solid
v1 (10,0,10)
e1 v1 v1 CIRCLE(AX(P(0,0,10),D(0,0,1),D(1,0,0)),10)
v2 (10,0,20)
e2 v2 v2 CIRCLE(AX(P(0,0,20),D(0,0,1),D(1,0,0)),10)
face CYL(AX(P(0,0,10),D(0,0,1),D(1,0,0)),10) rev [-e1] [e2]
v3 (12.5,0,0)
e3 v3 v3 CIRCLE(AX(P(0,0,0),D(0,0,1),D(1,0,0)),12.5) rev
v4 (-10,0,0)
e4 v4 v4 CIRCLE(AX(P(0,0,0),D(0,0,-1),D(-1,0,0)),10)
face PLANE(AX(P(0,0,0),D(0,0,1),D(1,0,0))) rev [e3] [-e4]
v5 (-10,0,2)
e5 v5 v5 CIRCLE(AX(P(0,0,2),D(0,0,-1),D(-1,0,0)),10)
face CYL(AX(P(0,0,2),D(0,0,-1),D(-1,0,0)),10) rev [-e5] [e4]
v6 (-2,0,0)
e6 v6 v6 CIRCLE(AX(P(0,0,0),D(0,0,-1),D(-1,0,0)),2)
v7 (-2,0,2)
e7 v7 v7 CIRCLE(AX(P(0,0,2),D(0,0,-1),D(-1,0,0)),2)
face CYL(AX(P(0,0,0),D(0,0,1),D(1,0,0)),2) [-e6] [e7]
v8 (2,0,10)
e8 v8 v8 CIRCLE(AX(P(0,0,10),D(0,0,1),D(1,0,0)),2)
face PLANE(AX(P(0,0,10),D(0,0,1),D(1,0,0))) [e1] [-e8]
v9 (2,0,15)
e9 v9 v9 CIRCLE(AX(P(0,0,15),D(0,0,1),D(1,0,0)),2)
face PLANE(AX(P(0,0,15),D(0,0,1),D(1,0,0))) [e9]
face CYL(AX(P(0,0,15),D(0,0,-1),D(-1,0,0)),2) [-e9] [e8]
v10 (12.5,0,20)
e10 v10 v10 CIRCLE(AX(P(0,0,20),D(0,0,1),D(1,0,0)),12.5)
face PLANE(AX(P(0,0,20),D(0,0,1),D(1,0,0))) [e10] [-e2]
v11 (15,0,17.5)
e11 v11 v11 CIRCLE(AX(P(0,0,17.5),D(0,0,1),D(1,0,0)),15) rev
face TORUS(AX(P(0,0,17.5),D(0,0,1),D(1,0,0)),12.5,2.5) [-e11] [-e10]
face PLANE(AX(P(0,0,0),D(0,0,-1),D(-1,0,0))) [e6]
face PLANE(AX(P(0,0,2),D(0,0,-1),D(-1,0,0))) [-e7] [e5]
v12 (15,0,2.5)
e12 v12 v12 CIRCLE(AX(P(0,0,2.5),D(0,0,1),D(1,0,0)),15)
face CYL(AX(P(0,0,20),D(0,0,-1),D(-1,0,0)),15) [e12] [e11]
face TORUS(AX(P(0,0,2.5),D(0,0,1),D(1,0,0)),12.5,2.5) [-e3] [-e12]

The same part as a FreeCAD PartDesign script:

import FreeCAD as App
import Part
import Sketcher
from FreeCAD import Vector


def edges_at(feature, points):
    """Names of the edges that pass closest to the given points."""
    edges = feature.Shape.Edges
    near = lambda p: min(range(len(edges)), key=lambda i: edges[i].distToShape(Part.Vertex(*p))[0])
    return sorted({f"Edge{near(p) + 1}" for p in points})

doc = App.newDocument("Part")
body = doc.addObject("PartDesign::Body", "Body")

# Sketch on XY plane
sketch1 = body.newObject("Sketcher::SketchObject", "Sketch")
sketch1.AttachmentSupport = (doc.getObject("XY_Plane"), [""])
sketch1.MapMode = "FlatFace"
sketch1.addGeometry(Part.Circle(Vector(0, 0, 0), Vector(0, 0, 1), 15), False)
sketch1.addConstraint([
    Sketcher.Constraint("Coincident", 0, 3, -1, 1),
    Sketcher.Constraint("Diameter", 0, 30.0),
])
pad1 = body.newObject("PartDesign::Pad", "Pad")
pad1.Profile = sketch1
pad1.Length = 20

# Sketch on XY plane
sketch2 = body.newObject("Sketcher::SketchObject", "Sketch001")
sketch2.AttachmentSupport = (doc.getObject("XY_Plane"), [""])
sketch2.MapMode = "FlatFace"
sketch2.AttachmentOffset = App.Placement(Vector(0, 0, 20), App.Rotation())
sketch2.addGeometry(Part.Circle(Vector(0, 0, 0), Vector(0, 0, 1), 10), False)
sketch2.addConstraint([
    Sketcher.Constraint("Coincident", 0, 3, -1, 1),
    Sketcher.Constraint("Diameter", 0, 20.0),
])
pocket1 = body.newObject("PartDesign::Pocket", "Pocket")
pocket1.Profile = sketch2
pocket1.Length = 10

# Sketch on XY plane
sketch3 = body.newObject("Sketcher::SketchObject", "Sketch002")
sketch3.AttachmentSupport = (doc.getObject("XY_Plane"), [""])
sketch3.MapMode = "FlatFace"
sketch3.AttachmentOffset = App.Placement(Vector(0, 0, 2), App.Rotation())
sketch3.addGeometry(Part.Circle(Vector(0, 0, 0), Vector(0, 0, 1), 10), False)
sketch3.addConstraint([
    Sketcher.Constraint("Coincident", 0, 3, -1, 1),
    Sketcher.Constraint("Diameter", 0, 20.0),
])
pocket2 = body.newObject("PartDesign::Pocket", "Pocket001")
pocket2.Profile = sketch3
pocket2.Length = 2

# Sketch on XY plane
sketch4 = body.newObject("Sketcher::SketchObject", "Sketch003")
sketch4.AttachmentSupport = (doc.getObject("XY_Plane"), [""])
sketch4.MapMode = "FlatFace"
sketch4.AttachmentOffset = App.Placement(Vector(0, 0, 10), App.Rotation())
sketch4.addGeometry(Part.Circle(Vector(0, 0, 0), Vector(0, 0, 1), 2), False)
sketch4.addConstraint([
    Sketcher.Constraint("Coincident", 0, 3, -1, 1),
    Sketcher.Constraint("Diameter", 0, 4.0),
])
pad2 = body.newObject("PartDesign::Pad", "Pad001")
pad2.Profile = sketch4
pad2.Length = 5

# Sketch on XY plane
sketch5 = body.newObject("Sketcher::SketchObject", "Sketch004")
sketch5.AttachmentSupport = (doc.getObject("XY_Plane"), [""])
sketch5.MapMode = "FlatFace"
sketch5.addGeometry(Part.Circle(Vector(0, 0, 0), Vector(0, 0, 1), 2), False)
sketch5.addConstraint([
    Sketcher.Constraint("Coincident", 0, 3, -1, 1),
    Sketcher.Constraint("Diameter", 0, 4.0),
])
pad3 = body.newObject("PartDesign::Pad", "Pad002")
pad3.Profile = sketch5
pad3.Length = 2
doc.recompute()

fillet = body.newObject("PartDesign::Fillet", "Fillet")
fillet.Base = (pad3, edges_at(pad3, [(-15, 0, 20)]))
fillet.Radius = 2.5
doc.recompute()

fillet2 = body.newObject("PartDesign::Fillet", "Fillet001")
fillet2.Base = (fillet, edges_at(fillet, [(-15, 0, 0)]))
fillet2.Radius = 2.5

doc.recompute()
